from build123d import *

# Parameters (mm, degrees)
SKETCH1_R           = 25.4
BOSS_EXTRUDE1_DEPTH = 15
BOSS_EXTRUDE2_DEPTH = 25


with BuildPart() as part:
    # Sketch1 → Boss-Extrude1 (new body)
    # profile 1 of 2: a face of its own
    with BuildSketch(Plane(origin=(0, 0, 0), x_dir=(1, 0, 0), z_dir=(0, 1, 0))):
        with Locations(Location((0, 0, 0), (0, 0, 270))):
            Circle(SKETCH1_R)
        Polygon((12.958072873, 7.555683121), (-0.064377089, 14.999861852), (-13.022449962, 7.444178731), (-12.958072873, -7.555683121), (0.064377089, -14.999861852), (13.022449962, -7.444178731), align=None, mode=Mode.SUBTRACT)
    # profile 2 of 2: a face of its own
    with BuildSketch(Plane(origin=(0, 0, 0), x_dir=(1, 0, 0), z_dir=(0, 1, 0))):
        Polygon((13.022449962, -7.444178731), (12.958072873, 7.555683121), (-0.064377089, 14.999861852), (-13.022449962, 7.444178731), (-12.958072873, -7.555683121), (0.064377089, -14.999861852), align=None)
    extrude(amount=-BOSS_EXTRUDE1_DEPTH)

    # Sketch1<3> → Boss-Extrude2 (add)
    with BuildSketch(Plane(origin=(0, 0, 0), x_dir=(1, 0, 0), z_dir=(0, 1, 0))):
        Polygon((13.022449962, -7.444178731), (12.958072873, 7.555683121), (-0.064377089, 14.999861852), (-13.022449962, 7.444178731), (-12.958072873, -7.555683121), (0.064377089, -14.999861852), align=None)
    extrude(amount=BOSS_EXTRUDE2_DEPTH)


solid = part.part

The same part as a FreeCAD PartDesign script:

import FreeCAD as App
import Part
import Sketcher
Q = App.Units.Quantity


def add_polygon(sketch, points):
    """Adds a closed chain of lines whose ends are joined by coincident constraints."""
    first, n = sketch.GeometryCount, len(points)
    for a, b in zip(points, points[1:] + points[:1]):
        sketch.addGeometry(Part.LineSegment(App.Vector(*a, 0), App.Vector(*b, 0)), False)
    for i in range(n):
        sketch.addConstraint(Sketcher.Constraint("Coincident", first + i, 2, first + (i + 1) % n, 1))

doc = App.newDocument("Part")
params = doc.addObject("Spreadsheet::Sheet", "Params")
for row, (alias, value) in enumerate([
    ("sketch1_diameter", "50.8 mm"),
    ("pad1_length", "15 mm"),
    ("sketch2_length", "15 mm"),
    ("pad2_length", "25 mm"),
], start=1):
    params.set(f"A{row}", alias)
    params.set(f"B{row}", "=" + value)
    params.setAlias(f"B{row}", alias)

body = doc.addObject("PartDesign::Body", "Body")

# Sketch on XZ plane
sketch1 = body.newObject("Sketcher::SketchObject", "Sketch")
sketch1.AttachmentSupport = (doc.getObject("XZ_Plane"), [""])
sketch1.MapMode = "FlatFace"
sketch1.addGeometry(Part.Circle(App.Vector(0, 0, 0), App.Vector(0, 0, 1), 25), False)
sketch1.addConstraint(Sketcher.Constraint("Coincident", 0, 3, -1, 1))
sketch1.addConstraint(Sketcher.Constraint("Diameter", 0, Q("50.8 mm")))
sketch1.setExpression("Constraints[1]", "Params.sketch1_diameter")
pad1 = body.newObject("PartDesign::Pad", "Pad")
pad1.Profile = sketch1
pad1.setExpression("Length", "Params.pad1_length")

# Sketch on XZ plane
sketch2 = body.newObject("Sketcher::SketchObject", "Sketch001")
sketch2.AttachmentSupport = (doc.getObject("XZ_Plane"), [""])
sketch2.MapMode = "FlatFace"
add_polygon(sketch2, [(13, 7), (13, -8), (0, -15), (-13, -7), (-13, 8), (0, 15)])  # lines 0-5
sketch2.addConstraint(Sketcher.Constraint("Symmetric", 0, 2, 3, 2, -1, 1))
sketch2.addConstraint(Sketcher.Constraint("Symmetric", 1, 2, 4, 2, -1, 1))
sketch2.addConstraint(Sketcher.Constraint("Symmetric", 2, 2, 5, 2, -1, 1))
sketch2.addConstraint(Sketcher.Constraint("Equal", 0, 1))
sketch2.addConstraint(Sketcher.Constraint("Equal", 1, 2))
sketch2.addConstraint(Sketcher.Constraint("Distance", 0, Q("15 mm")))
sketch2.addConstraint(Sketcher.Constraint("DistanceX", 2, 2, 5, 2, Q("26.0449 mm")))
sketch2.addConstraint(Sketcher.Constraint("DistanceY", 1, 2, -1, 1, Q("14.999862 mm")))
sketch2.addConstraint(Sketcher.Constraint("DistanceY", 2, 2, -1, 1, Q("7.444179 mm")))
sketch2.setExpression("Constraints[11]", "Params.sketch2_length")
pad2 = body.newObject("PartDesign::Pad", "Pad001")
pad2.Profile = sketch2
pad2.setExpression("Length", "Params.pad2_length")
pad2.Reversed = True

doc.recompute()
